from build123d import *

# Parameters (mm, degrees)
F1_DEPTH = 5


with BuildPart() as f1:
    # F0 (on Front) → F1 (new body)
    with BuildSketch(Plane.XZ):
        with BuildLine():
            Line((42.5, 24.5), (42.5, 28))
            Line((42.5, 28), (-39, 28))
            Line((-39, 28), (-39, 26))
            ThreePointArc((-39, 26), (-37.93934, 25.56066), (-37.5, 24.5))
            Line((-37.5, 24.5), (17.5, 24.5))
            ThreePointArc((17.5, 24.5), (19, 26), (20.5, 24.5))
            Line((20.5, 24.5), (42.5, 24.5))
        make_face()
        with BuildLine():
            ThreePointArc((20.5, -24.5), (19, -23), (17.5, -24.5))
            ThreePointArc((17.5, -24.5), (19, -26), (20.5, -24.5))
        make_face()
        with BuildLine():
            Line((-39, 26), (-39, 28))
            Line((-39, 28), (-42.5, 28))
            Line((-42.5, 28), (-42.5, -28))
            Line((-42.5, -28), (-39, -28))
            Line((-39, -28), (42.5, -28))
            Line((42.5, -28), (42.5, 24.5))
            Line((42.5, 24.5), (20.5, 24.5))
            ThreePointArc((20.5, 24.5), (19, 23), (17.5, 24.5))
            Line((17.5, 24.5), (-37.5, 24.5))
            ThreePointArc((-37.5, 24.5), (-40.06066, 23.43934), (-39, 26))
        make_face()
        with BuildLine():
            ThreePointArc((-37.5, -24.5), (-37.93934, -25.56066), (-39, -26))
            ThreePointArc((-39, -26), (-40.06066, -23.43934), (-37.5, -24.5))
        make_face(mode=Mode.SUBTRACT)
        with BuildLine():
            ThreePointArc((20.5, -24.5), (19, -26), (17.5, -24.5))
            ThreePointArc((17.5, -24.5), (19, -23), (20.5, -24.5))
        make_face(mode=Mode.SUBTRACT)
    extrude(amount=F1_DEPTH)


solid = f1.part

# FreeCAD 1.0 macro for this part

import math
import FreeCAD as App
import Part
import Sketcher
from FreeCAD import Vector
Q = App.Units.Quantity

doc = App.newDocument("Part")
body = doc.addObject("PartDesign::Body", "Body")

# Sketch on XZ plane
sketch1 = doc.addObject("Sketcher::SketchObject", "Sketch")
body.addObject(sketch1)
sketch1.AttachmentSupport = (doc.XZ_Plane, [""])
sketch1.MapMode = "FlatFace"
sketch1.addGeometry([
    Part.LineSegment(Vector(42.5, 28, 0), Vector(-42.5, 28, 0)),  # 0
    Part.LineSegment(Vector(-42.5, 28, 0), Vector(-42.5, -28, 0)),  # 1
    Part.LineSegment(Vector(-42.5, -28, 0), Vector(42.5, -28, 0)),  # 2
    Part.LineSegment(Vector(42.5, -28, 0), Vector(42.5, 28, 0)),  # 3
    Part.ArcOfCircle(Part.Circle(Vector(-39, -24.5, 0), Vector(0, 0, 1), 1.5), math.radians(0.000004), math.radians(269.999996)),  # 4
    Part.ArcOfCircle(Part.Circle(Vector(-39.000001, -24.499999, 0), Vector(0, 0, 1), 1.500001), math.radians(-89.999978), math.radians(-0.000022)),  # 5
    Part.Circle(Vector(19, -24.5, 0), Vector(0, 0, 1), 1.5),  # 6
    Part.ArcOfCircle(Part.Circle(Vector(-39.000001, 24.499999, 0), Vector(0, 0, 1), 1.500001), math.radians(0.000022), math.radians(89.999978)),  # 7
    Part.ArcOfCircle(Part.Circle(Vector(-39, 24.5, 0), Vector(0, 0, 1), 1.5), math.radians(90.000004), math.radians(359.999996)),  # 8
    Part.Circle(Vector(19, 24.5, 0), Vector(0, 0, 1), 1.5),  # 9
], False)
sketch1.addConstraint([
    Sketcher.Constraint("Coincident", 0, 2, 1, 1),
    Sketcher.Constraint("Coincident", 1, 2, 2, 1),
    Sketcher.Constraint("Coincident", 2, 2, 3, 1),
    Sketcher.Constraint("Coincident", 3, 2, 0, 1),
    Sketcher.Constraint("Tangent", 4, 1, 5, 2),
    Sketcher.Constraint("Coincident", 5, 1, 4, 2),
    Sketcher.Constraint("Tangent", 7, 1, 8, 2),
    Sketcher.Constraint("Coincident", 8, 1, 7, 2),
    Sketcher.Constraint("Horizontal", 0),
    Sketcher.Constraint("Vertical", 1),
    Sketcher.Constraint("Horizontal", 2),
    Sketcher.Constraint("Vertical", 3),
    Sketcher.Constraint("Equal", 5, 6),
    Sketcher.Constraint("Equal", 6, 7),
    Sketcher.Constraint("Equal", 8, 9),
    Sketcher.Constraint("Symmetric", 0, 2, 2, 2, -1, 1),
    Sketcher.Constraint("Symmetric", 4, 3, 7, 3, -1),
    Sketcher.Constraint("Symmetric", 6, 3, 9, 3, -1),
    Sketcher.Constraint("Horizontal", 5, 3, 6, 3),
    Sketcher.Constraint("Horizontal", 6, 3, 4, 1),
    Sketcher.Constraint("Horizontal", 9, 3, 7, 1),
    Sketcher.Constraint("Vertical", 8, 3, 5, 1),
    Sketcher.Constraint("Vertical", 5, 1, 8, 1),
    Sketcher.Constraint("Diameter", 6, Q("3 mm")),
    Sketcher.Constraint("DistanceX", 0, 2, 0, 1, Q("85 mm")),
    Sketcher.Constraint("DistanceY", 1, 2, 1, 1, Q("56 mm")),
    Sketcher.Constraint("DistanceX", 4, 3, -1, 1, Q("39 mm")),
    Sketcher.Constraint("DistanceX", -1, 1, 6, 3, Q("19 mm")),
    Sketcher.Constraint("DistanceY", 5, 1, -1, 1, Q("26 mm")),
])
pad1 = doc.addObject("PartDesign::Pad", "Pad")
body.addObject(pad1)
pad1.Profile = sketch1
pad1.Length = 5

doc.recompute()
